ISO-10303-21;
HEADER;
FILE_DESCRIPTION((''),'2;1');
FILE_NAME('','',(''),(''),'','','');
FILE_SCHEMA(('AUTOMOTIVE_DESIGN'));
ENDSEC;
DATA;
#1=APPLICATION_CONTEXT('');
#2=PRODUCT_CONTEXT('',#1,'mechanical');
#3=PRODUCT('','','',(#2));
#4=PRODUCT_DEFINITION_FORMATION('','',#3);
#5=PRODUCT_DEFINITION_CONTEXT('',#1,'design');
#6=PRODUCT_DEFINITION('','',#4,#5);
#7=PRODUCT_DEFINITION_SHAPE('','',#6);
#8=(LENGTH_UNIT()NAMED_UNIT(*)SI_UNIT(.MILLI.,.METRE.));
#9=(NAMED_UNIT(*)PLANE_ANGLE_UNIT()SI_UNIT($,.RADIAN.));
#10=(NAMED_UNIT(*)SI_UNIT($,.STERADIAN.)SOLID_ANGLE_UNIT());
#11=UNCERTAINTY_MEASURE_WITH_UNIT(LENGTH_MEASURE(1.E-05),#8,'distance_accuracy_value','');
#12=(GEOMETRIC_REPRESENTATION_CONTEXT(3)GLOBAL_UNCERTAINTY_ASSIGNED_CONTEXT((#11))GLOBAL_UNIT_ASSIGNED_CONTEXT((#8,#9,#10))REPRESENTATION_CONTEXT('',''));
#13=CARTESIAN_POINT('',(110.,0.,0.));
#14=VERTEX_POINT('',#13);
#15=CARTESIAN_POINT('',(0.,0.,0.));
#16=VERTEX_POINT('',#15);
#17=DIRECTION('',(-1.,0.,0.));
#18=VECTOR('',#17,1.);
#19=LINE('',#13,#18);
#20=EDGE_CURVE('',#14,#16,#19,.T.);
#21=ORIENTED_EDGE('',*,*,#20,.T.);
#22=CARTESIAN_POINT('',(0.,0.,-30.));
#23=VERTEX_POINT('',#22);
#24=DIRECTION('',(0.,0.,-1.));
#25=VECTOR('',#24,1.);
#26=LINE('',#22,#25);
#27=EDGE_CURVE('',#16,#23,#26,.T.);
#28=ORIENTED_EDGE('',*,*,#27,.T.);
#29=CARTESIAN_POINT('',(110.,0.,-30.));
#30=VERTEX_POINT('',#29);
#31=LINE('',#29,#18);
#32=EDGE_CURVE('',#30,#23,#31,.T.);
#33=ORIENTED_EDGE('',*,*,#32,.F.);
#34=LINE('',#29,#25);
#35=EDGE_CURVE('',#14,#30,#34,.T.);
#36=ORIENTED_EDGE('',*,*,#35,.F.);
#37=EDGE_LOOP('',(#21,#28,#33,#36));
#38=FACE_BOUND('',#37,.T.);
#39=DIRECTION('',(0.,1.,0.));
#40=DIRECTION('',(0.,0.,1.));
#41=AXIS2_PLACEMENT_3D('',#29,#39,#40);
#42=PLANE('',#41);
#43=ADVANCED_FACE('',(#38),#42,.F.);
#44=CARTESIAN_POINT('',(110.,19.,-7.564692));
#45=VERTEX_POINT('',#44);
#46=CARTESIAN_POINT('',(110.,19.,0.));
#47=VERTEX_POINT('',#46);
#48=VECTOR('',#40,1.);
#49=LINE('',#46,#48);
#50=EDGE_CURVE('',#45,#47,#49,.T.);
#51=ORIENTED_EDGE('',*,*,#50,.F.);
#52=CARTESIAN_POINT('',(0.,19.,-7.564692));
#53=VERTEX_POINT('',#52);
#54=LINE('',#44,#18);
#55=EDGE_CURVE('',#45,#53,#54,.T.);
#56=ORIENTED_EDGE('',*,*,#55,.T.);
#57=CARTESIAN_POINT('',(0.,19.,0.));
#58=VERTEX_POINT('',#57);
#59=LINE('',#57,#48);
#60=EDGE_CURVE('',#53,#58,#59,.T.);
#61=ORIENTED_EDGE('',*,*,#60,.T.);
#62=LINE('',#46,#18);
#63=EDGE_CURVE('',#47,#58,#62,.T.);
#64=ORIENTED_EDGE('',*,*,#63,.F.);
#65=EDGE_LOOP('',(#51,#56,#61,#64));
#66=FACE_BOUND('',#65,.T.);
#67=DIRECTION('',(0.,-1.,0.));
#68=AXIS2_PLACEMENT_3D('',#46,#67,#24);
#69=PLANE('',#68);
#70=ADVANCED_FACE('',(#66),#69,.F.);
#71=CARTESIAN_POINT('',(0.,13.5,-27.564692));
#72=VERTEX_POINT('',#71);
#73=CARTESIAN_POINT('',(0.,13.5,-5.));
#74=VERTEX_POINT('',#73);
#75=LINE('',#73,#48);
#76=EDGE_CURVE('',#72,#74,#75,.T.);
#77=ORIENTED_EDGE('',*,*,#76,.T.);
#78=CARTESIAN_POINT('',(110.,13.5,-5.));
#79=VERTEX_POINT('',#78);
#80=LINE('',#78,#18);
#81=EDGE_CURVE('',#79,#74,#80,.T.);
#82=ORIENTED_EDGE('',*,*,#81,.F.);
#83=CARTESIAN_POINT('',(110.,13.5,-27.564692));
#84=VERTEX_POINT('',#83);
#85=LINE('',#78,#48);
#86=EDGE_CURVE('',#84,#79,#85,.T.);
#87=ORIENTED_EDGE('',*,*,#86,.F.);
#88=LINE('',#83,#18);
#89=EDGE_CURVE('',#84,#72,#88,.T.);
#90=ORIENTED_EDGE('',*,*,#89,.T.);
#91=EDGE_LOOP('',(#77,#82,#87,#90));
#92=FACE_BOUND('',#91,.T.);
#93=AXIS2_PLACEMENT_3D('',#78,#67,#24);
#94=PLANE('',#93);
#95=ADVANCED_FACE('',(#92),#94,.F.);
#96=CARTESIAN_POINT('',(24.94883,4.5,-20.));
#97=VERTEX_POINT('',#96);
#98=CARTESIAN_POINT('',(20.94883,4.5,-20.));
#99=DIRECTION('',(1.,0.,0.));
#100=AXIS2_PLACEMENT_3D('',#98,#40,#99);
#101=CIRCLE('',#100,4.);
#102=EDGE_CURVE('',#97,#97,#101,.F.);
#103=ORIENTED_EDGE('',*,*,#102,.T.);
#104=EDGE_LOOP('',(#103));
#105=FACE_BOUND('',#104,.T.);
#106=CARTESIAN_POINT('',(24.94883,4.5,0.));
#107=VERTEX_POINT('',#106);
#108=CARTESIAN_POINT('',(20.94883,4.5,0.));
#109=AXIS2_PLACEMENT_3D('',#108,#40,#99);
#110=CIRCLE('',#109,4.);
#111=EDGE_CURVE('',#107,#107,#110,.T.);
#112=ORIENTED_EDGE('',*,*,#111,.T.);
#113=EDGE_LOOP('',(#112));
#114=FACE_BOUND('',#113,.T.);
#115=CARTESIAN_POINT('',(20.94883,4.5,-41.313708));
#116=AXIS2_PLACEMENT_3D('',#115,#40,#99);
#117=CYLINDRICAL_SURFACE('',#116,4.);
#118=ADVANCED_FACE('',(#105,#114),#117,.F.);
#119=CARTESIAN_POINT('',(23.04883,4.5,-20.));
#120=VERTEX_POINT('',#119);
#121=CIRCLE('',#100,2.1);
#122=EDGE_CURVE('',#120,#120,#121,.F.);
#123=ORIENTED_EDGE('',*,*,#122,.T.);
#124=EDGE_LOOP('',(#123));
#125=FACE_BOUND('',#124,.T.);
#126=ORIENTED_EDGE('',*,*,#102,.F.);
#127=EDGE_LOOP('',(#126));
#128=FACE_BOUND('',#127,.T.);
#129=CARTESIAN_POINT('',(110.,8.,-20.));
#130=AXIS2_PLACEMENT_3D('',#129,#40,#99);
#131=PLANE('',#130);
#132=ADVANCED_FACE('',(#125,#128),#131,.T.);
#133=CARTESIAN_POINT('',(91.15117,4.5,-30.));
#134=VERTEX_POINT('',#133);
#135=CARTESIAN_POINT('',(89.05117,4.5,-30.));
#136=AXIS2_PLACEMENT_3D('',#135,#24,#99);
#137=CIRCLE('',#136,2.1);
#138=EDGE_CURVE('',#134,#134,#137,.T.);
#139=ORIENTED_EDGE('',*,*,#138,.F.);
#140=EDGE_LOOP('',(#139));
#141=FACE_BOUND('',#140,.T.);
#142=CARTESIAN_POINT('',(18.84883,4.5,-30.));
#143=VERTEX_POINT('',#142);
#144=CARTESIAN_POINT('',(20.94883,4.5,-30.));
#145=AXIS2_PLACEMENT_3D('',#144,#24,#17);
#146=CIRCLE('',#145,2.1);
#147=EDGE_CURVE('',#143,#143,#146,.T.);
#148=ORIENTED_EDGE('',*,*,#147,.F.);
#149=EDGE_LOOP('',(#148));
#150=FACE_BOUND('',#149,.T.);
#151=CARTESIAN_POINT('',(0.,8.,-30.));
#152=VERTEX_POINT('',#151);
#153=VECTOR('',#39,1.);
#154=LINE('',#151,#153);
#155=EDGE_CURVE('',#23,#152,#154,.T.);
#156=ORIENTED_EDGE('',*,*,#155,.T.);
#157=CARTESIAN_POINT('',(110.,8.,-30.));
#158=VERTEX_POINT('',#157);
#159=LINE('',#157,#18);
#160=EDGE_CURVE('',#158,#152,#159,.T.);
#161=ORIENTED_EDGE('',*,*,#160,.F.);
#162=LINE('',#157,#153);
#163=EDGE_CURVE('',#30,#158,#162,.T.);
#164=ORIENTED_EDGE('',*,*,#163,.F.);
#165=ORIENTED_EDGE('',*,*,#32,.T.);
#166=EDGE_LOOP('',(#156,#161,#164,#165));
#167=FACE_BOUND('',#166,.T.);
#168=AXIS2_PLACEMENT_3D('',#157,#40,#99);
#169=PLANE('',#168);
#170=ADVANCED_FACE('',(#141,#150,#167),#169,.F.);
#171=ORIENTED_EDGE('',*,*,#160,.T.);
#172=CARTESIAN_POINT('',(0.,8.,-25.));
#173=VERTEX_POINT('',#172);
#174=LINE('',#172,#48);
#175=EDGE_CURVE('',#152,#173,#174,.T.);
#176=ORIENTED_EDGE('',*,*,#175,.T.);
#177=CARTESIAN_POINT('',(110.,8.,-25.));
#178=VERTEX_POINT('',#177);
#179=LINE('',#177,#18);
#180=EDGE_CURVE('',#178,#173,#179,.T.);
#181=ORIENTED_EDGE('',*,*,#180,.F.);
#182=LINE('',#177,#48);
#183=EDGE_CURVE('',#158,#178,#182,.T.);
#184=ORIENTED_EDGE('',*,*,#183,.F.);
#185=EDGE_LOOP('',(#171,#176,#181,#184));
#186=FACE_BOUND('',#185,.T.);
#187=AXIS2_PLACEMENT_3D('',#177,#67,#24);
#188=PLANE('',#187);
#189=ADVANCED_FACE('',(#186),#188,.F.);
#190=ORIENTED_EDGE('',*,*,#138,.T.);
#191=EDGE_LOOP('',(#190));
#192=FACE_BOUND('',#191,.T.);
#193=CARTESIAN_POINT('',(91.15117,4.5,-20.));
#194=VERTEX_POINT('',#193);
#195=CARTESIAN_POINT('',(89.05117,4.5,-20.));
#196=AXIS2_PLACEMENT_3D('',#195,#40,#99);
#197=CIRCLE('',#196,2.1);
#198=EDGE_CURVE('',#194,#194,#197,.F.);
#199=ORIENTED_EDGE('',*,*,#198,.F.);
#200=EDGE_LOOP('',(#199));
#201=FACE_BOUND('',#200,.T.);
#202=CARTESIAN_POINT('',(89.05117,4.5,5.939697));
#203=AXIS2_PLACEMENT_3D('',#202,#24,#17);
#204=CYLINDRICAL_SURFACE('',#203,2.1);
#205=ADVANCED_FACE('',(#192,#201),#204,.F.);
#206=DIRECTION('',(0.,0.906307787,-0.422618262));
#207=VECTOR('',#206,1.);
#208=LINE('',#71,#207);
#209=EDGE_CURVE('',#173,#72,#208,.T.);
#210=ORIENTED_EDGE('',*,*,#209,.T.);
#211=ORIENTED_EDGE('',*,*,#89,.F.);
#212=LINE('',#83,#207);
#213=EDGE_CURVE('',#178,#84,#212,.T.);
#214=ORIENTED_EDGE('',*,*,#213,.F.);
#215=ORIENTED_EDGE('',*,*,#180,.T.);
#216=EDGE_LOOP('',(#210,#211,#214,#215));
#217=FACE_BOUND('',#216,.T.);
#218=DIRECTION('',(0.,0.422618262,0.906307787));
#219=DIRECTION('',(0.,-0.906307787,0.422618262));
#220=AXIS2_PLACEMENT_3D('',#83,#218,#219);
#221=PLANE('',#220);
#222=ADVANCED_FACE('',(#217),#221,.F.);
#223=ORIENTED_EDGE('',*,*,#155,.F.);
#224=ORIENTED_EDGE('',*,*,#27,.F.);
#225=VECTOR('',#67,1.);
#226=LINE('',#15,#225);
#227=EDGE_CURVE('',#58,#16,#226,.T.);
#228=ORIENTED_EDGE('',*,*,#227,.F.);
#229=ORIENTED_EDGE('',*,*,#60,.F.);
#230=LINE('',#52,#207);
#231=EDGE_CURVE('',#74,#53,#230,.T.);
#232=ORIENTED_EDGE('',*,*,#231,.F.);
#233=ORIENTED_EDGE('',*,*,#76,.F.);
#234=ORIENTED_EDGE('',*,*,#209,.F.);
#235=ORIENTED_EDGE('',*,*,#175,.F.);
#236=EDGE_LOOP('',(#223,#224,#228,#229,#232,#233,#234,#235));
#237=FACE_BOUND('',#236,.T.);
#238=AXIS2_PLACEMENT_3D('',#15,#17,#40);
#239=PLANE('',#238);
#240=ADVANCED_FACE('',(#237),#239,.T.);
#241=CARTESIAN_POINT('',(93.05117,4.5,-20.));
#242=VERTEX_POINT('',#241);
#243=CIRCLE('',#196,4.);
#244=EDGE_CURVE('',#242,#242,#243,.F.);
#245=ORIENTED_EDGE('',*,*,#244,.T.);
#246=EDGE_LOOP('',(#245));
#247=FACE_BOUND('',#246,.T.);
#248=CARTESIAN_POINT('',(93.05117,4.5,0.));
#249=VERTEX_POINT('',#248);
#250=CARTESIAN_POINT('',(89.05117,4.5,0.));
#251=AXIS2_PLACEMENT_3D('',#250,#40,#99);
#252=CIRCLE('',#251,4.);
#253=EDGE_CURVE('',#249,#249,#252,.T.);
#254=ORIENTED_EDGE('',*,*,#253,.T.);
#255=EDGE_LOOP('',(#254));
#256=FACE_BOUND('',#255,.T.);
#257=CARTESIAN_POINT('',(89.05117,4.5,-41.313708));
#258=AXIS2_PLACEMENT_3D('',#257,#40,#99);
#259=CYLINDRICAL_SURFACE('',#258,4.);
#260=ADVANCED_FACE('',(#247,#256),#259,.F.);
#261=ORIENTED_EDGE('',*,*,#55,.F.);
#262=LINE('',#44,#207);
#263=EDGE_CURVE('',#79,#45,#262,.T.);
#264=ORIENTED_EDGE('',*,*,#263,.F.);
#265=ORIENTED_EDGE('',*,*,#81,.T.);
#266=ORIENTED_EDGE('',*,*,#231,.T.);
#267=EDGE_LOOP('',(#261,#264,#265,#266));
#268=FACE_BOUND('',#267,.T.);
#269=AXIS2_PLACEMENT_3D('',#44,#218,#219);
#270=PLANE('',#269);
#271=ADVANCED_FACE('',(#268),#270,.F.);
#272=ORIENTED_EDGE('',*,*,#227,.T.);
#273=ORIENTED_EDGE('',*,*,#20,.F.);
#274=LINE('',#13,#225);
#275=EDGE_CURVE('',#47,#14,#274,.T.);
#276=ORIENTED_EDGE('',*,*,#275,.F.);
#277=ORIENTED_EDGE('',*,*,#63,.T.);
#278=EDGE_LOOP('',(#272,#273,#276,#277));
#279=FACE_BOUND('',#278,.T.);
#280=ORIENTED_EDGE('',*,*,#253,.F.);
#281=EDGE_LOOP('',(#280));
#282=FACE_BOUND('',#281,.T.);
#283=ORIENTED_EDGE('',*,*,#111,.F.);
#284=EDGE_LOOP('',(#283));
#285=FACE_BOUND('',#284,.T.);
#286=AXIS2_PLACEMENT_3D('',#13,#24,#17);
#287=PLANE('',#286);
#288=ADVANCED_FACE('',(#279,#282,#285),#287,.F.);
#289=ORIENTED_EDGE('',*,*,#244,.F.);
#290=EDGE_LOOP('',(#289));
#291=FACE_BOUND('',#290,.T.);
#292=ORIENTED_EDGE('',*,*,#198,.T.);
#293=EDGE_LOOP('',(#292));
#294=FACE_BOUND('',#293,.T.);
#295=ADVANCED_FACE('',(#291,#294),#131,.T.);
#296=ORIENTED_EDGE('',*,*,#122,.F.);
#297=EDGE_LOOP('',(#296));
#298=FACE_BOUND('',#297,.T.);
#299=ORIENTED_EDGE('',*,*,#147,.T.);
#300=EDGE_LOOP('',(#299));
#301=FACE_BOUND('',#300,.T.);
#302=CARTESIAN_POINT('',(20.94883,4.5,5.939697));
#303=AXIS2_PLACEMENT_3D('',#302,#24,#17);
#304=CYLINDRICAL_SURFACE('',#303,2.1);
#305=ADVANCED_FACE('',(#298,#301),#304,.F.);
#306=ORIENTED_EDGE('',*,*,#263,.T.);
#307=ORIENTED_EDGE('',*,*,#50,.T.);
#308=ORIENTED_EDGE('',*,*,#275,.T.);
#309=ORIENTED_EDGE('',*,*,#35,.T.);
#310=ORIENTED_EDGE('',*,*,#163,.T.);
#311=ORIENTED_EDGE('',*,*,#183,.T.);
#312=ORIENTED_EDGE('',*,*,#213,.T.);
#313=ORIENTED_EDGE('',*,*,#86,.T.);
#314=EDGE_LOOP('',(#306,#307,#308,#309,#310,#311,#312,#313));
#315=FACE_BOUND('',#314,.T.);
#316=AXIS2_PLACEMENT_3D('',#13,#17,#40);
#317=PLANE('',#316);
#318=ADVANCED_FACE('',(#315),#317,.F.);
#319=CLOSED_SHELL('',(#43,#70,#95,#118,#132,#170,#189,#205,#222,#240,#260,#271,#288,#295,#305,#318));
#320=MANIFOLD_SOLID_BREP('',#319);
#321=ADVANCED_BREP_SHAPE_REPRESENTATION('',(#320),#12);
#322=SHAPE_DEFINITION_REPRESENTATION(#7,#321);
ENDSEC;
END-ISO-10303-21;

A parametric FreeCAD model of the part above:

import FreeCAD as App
import Part
import Sketcher
Q = App.Units.Quantity


def add_polygon(sketch, points):
    """Adds a closed chain of lines whose ends are joined by coincident constraints."""
    first, n = sketch.GeometryCount, len(points)
    for a, b in zip(points, points[1:] + points[:1]):
        sketch.addGeometry(Part.LineSegment(App.Vector(*a, 0), App.Vector(*b, 0)), False)
    for i in range(n):
        sketch.addConstraint(Sketcher.Constraint("Coincident", first + i, 2, first + (i + 1) % n, 1))

doc = App.newDocument("Part")
body = doc.addObject("PartDesign::Body", "Body")

# Sketch on YZ plane
sketch1 = body.newObject("Sketcher::SketchObject", "Sketch")
sketch1.AttachmentSupport = (doc.getObject("YZ_Plane"), [""])
sketch1.MapMode = "FlatFace"
add_polygon(sketch1, [(19, 0), (0, 0), (0, -30), (8, -30), (8, -25), (14, -28), (14, -5), (19, -8)])  # lines 0-7
sketch1.addConstraint(Sketcher.Constraint("Horizontal", 0))
sketch1.addConstraint(Sketcher.Constraint("Vertical", 1))
sketch1.addConstraint(Sketcher.Constraint("Horizontal", 2))
sketch1.addConstraint(Sketcher.Constraint("Vertical", 3))
sketch1.addConstraint(Sketcher.Constraint("Vertical", 5))
sketch1.addConstraint(Sketcher.Constraint("Vertical", 7))
sketch1.addConstraint(Sketcher.Constraint("Coincident", 0, 2, -1, 1))
sketch1.addConstraint(Sketcher.Constraint("Parallel", 4, 6))
sketch1.addConstraint(Sketcher.Constraint("Equal", 4, 6))
sketch1.addConstraint(Sketcher.Constraint("DistanceX", 0, 2, 0, 1, Q("19 mm")))
sketch1.addConstraint(Sketcher.Constraint("DistanceX", 2, 1, 2, 2, Q("8 mm")))
sketch1.addConstraint(Sketcher.Constraint("DistanceY", 1, 2, 1, 1, Q("30 mm")))
sketch1.addConstraint(Sketcher.Constraint("DistanceY", 3, 1, 3, 2, Q("5 mm")))
sketch1.addConstraint(Sketcher.Constraint("Angle", 4, Q("-25 deg")))
sketch1.addConstraint(Sketcher.Constraint("DistanceY", 5, 2, -1, 1, Q("5 mm")))
pad1 = body.newObject("PartDesign::Pad", "Pad")
pad1.Profile = sketch1
pad1.Length = 110

# Sketch on XY plane
sketch2 = body.newObject("Sketcher::SketchObject", "Sketch001")
sketch2.AttachmentSupport = (doc.getObject("XY_Plane"), [""])
sketch2.MapMode = "FlatFace"
sketch2.AttachmentOffset = App.Placement(App.Vector(0, 0, -30), App.Rotation())
sketch2.addGeometry(Part.Circle(App.Vector(20.9, 4.5, 0), App.Vector(0, 0, 1), 2.1), False)
sketch2.addGeometry(Part.Circle(App.Vector(89.1, 4.5, 0), App.Vector(0, 0, 1), 2.1), False)
sketch2.addConstraint(Sketcher.Constraint("Equal", 0, 1))
sketch2.addConstraint(Sketcher.Constraint("Horizontal", 0, 3, 1, 3))
sketch2.addConstraint(Sketcher.Constraint("Diameter", 0, Q("4.2 mm")))
sketch2.addConstraint(Sketcher.Constraint("DistanceY", -1, 1, 0, 3, Q("4.5 mm")))
sketch2.addConstraint(Sketcher.Constraint("DistanceX", -1, 1, 0, 3, Q("20.94883 mm")))
sketch2.addConstraint(Sketcher.Constraint("DistanceX", -1, 1, 1, 3, Q("89.05117 mm")))
pocket1 = body.newObject("PartDesign::Pocket", "Pocket")
pocket1.Profile = sketch2
pocket1.Length = 30
pocket1.Reversed = True

# Sketch on XY plane
sketch3 = body.newObject("Sketcher::SketchObject", "Sketch002")
sketch3.AttachmentSupport = (doc.getObject("XY_Plane"), [""])
sketch3.MapMode = "FlatFace"
sketch3.addGeometry(Part.Circle(App.Vector(20.9, 4.5, 0), App.Vector(0, 0, 1), 4), False)
sketch3.addGeometry(Part.Circle(App.Vector(89.1, 4.5, 0), App.Vector(0, 0, 1), 4), False)
sketch3.addConstraint(Sketcher.Constraint("Equal", 0, 1))
sketch3.addConstraint(Sketcher.Constraint("Horizontal", 0, 3, 1, 3))
sketch3.addConstraint(Sketcher.Constraint("Diameter", 0, Q("8 mm")))
sketch3.addConstraint(Sketcher.Constraint("DistanceY", -1, 1, 0, 3, Q("4.5 mm")))
sketch3.addConstraint(Sketcher.Constraint("DistanceX", -1, 1, 0, 3, Q("20.94883 mm")))
sketch3.addConstraint(Sketcher.Constraint("DistanceX", -1, 1, 1, 3, Q("89.05117 mm")))
pocket2 = body.newObject("PartDesign::Pocket", "Pocket001")
pocket2.Profile = sketch3
pocket2.Length = 20

doc.recompute()
